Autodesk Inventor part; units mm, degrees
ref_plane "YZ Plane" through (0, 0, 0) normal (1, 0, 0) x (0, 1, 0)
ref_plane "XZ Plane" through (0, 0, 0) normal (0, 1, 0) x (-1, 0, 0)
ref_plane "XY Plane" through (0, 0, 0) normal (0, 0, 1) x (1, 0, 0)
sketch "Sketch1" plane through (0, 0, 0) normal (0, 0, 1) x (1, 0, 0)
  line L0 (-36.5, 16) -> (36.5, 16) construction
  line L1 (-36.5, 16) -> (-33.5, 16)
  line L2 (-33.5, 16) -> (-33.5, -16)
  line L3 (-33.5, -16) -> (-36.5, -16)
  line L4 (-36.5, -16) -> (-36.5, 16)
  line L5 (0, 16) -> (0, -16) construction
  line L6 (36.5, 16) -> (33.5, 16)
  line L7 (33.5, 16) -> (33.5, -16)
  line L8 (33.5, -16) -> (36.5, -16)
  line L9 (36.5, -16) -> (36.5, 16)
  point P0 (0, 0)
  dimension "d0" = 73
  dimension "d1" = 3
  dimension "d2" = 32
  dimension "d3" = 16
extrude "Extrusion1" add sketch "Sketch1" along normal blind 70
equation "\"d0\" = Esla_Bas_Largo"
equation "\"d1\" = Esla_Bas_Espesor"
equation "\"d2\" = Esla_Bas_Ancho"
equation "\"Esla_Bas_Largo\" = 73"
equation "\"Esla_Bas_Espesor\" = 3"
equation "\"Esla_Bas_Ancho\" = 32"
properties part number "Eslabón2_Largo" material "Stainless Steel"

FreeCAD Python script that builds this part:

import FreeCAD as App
import Part
import Sketcher

V = App.Vector
Q = App.Units.Quantity

doc = App.newDocument("Part")
body = doc.addObject("PartDesign::Body", "Body")
body.AllowCompound = True

sketch1 = body.newObject("Sketcher::SketchObject", "Sketch")
sketch1.AttachmentSupport = (doc.getObject("XY_Plane"), [""])
sketch1.MapMode = "FlatFace"
sketch1.addGeometry([
    Part.LineSegment(V(-33.5, 16, 0), V(-36.5, 16, 0)),
    Part.LineSegment(V(-36.5, 16, 0), V(-36.5, -16, 0)),
    Part.LineSegment(V(-36.5, -16, 0), V(-33.5, -16, 0)),
    Part.LineSegment(V(-33.5, -16, 0), V(-33.5, 16, 0)),
    Part.LineSegment(V(36.5, -16, 0), V(36.5, 16, 0)),
    Part.LineSegment(V(36.5, 16, 0), V(33.5, 16, 0)),
    Part.LineSegment(V(33.5, 16, 0), V(33.5, -16, 0)),
    Part.LineSegment(V(33.5, -16, 0), V(36.5, -16, 0)),
], False)
sketch1.addConstraint([
    Sketcher.Constraint("Coincident", 0, 2, 1, 1),
    Sketcher.Constraint("Coincident", 1, 2, 2, 1),
    Sketcher.Constraint("Coincident", 2, 2, 3, 1),
    Sketcher.Constraint("Coincident", 3, 2, 0, 1),
    Sketcher.Constraint("Coincident", 4, 2, 5, 1),
    Sketcher.Constraint("Coincident", 5, 2, 6, 1),
    Sketcher.Constraint("Coincident", 6, 2, 7, 1),
    Sketcher.Constraint("Coincident", 7, 2, 4, 1),
    Sketcher.Constraint("Horizontal", 0),
    Sketcher.Constraint("Vertical", 1),
    Sketcher.Constraint("Horizontal", 2),
    Sketcher.Constraint("Vertical", 3),
    Sketcher.Constraint("Vertical", 4),
    Sketcher.Constraint("Horizontal", 5),
    Sketcher.Constraint("Vertical", 6),
    Sketcher.Constraint("Horizontal", 7),
    Sketcher.Constraint("Symmetric", 1, 2, 4, 2, -1, 1),
    Sketcher.Constraint("Symmetric", 3, 2, 6, 2, -1, 1),
    Sketcher.Constraint("Horizontal", 3, 2, 4, 2),
    Sketcher.Constraint("DistanceX", 0, 2, 0, 1, Q("3 mm")),
    Sketcher.Constraint("DistanceY", 1, 2, 1, 1, Q("32 mm")),
    Sketcher.Constraint("DistanceX", 0, 2, 4, 2, Q("73 mm")),
])
pad1 = body.newObject("PartDesign::Pad", "Pad")
pad1.Profile = sketch1
pad1.Length = 70

doc.recompute()
